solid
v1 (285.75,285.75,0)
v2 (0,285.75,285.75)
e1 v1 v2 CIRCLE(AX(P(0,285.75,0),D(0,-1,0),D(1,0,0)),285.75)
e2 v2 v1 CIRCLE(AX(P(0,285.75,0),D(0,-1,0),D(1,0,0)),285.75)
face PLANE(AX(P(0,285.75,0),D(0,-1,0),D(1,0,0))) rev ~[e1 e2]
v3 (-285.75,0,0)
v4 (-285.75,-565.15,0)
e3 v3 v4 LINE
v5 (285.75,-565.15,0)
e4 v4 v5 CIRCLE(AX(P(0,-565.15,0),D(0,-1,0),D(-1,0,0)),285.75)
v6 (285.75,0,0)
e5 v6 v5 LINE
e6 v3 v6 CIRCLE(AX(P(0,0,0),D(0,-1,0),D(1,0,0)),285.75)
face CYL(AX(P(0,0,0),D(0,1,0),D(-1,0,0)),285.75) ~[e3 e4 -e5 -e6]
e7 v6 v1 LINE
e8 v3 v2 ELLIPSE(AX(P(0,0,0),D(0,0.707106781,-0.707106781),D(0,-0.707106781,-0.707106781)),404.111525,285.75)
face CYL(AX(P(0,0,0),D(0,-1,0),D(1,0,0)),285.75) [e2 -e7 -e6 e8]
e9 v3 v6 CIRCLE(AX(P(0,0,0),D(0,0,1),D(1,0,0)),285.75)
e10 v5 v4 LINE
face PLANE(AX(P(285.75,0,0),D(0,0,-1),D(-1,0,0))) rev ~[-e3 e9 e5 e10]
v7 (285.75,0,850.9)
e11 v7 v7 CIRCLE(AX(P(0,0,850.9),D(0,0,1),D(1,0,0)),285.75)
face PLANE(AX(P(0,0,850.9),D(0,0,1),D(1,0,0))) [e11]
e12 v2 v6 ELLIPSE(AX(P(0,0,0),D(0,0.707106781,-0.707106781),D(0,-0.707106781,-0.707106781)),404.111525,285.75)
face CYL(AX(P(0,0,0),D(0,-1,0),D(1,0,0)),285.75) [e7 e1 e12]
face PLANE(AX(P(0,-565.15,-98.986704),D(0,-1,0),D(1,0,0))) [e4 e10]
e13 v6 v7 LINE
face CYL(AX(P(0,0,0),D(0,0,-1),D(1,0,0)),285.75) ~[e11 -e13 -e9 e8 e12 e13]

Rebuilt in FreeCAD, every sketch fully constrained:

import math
import FreeCAD as App
import Part
import Sketcher
from FreeCAD import Vector
Q = App.Units.Quantity

doc = App.newDocument("Part")
body = doc.addObject("PartDesign::Body", "Body")

# Sketch on XY plane
sketch1 = body.newObject("Sketcher::SketchObject", "Sketch")
sketch1.AttachmentSupport = (doc.getObject("XY_Plane"), [""])
sketch1.MapMode = "FlatFace"
sketch1.addGeometry(Part.Circle(Vector(0, 0, 0), Vector(0, 0, 1), 285.75), False)
sketch1.addConstraint(Sketcher.Constraint("Coincident", 0, 3, -1, 1))
sketch1.addConstraint(Sketcher.Constraint("Diameter", 0, Q("22.5 in")))
pad1 = body.newObject("PartDesign::Pad", "Pad")
pad1.Profile = sketch1
pad1.Length = Q("33.5 in")

# Sketch on XZ plane
sketch2 = body.newObject("Sketcher::SketchObject", "Sketch001")
sketch2.AttachmentSupport = (doc.getObject("XZ_Plane"), [""])
sketch2.MapMode = "FlatFace"
sketch2.addGeometry(Part.Circle(Vector(0, 0, 0), Vector(0, 0, 1), 285.75), False)
sketch2.addConstraint(Sketcher.Constraint("Coincident", 0, 3, -1, 1))
sketch2.addConstraint(Sketcher.Constraint("Diameter", 0, Q("22.5 in")))
pad2 = body.newObject("PartDesign::Pad", "Pad001")
pad2.Profile = sketch2
pad2.Length = Q("11.25 in")
pad2.Reversed = True

# Sketch on XZ plane
sketch3 = body.newObject("Sketcher::SketchObject", "Sketch002")
sketch3.AttachmentSupport = (doc.getObject("XZ_Plane"), [""])
sketch3.MapMode = "FlatFace"
sketch3.addGeometry(Part.ArcOfCircle(Part.Circle(Vector(0, 0, 0), Vector(0, 0, 1), 285.75), math.radians(180), math.radians(360)), False)
sketch3.addGeometry(Part.LineSegment(Vector(285.75, 0, 0), Vector(-285.75, 0, 0)), False)
sketch3.addConstraint(Sketcher.Constraint("Coincident", 0, 1, 1, 2))
sketch3.addConstraint(Sketcher.Constraint("Coincident", 1, 1, 0, 2))
sketch3.addConstraint(Sketcher.Constraint("Horizontal", 1))
sketch3.addConstraint(Sketcher.Constraint("Coincident", 0, 3, -1, 1))
sketch3.addConstraint(Sketcher.Constraint("PointOnObject", 0, 1, -1))
sketch3.addConstraint(Sketcher.Constraint("Radius", 0, Q("11.25 in")))
pad3 = body.newObject("PartDesign::Pad", "Pad002")
pad3.Profile = sketch3
pad3.Length = Q("22.25 in")

doc.recompute()
